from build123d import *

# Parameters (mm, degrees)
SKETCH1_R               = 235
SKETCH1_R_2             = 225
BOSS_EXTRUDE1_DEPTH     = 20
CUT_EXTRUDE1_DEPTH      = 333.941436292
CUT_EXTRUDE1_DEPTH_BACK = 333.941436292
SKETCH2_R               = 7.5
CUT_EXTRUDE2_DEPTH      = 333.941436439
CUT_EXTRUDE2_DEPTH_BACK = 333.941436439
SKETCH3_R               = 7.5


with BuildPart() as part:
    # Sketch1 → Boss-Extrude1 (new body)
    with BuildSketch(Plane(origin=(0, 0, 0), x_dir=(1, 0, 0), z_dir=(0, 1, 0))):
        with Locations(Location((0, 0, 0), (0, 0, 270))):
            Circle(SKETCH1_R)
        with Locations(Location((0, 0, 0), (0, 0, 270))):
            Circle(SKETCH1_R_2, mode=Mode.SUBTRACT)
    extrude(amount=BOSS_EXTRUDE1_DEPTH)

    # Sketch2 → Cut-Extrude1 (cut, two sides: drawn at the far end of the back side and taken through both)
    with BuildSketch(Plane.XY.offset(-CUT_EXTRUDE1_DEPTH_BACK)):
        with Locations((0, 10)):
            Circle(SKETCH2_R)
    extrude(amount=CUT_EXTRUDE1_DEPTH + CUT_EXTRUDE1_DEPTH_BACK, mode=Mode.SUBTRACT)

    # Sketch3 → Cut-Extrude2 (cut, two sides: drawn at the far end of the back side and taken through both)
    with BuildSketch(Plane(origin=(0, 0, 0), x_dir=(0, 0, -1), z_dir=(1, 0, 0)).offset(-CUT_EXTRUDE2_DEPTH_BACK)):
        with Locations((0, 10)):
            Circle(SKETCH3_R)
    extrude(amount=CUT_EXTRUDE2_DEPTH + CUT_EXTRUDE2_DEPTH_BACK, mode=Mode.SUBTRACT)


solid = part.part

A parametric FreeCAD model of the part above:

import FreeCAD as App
import Part
import Sketcher

V = App.Vector

doc = App.newDocument("Part")
body = doc.addObject("PartDesign::Body", "Body")

# Sketch on XZ plane
sketch1 = body.newObject("Sketcher::SketchObject", "Sketch")
sketch1.AttachmentSupport = (doc.getObject("XZ_Plane"), [""])
sketch1.MapMode = "FlatFace"
sketch1.addGeometry(Part.Circle(V(0, 0, 0), V(0, 0, 1), 235), False)
sketch1.addGeometry(Part.Circle(V(0, 0, 0), V(0, 0, 1), 225), False)
sketch1.addConstraint(Sketcher.Constraint("Coincident", 0, 3, -1, 1))
sketch1.addConstraint(Sketcher.Constraint("Coincident", 1, 3, -1, 1))
sketch1.addConstraint(Sketcher.Constraint("Diameter", 0, 470.0))
sketch1.addConstraint(Sketcher.Constraint("Diameter", 1, 450.0))
pad1 = body.newObject("PartDesign::Pad", "Pad")
pad1.Profile = sketch1
pad1.Length = 20
pad1.Reversed = True

# Sketch on XY plane
sketch2 = body.newObject("Sketcher::SketchObject", "Sketch001")
sketch2.AttachmentSupport = (doc.getObject("XY_Plane"), [""])
sketch2.MapMode = "FlatFace"
sketch2.addGeometry(Part.Circle(V(0, 10, 0), V(0, 0, 1), 8), False)
sketch2.addConstraint(Sketcher.Constraint("PointOnObject", 0, 3, -2))
sketch2.addConstraint(Sketcher.Constraint("Diameter", 0, 15.0))
sketch2.addConstraint(Sketcher.Constraint("DistanceY", -1, 1, 0, 3, 10.0))
pocket1 = body.newObject("PartDesign::Pocket", "Pocket")
pocket1.Profile = sketch2
pocket1.Type = "ThroughAll"
pocket1.Midplane = True

# Sketch on YZ plane
sketch3 = body.newObject("Sketcher::SketchObject", "Sketch002")
sketch3.AttachmentSupport = (doc.getObject("YZ_Plane"), [""])
sketch3.MapMode = "FlatFace"
sketch3.addGeometry(Part.Circle(V(10, 0, 0), V(0, 0, 1), 8), False)
sketch3.addConstraint(Sketcher.Constraint("PointOnObject", 0, 3, -1))
sketch3.addConstraint(Sketcher.Constraint("Diameter", 0, 15.0))
sketch3.addConstraint(Sketcher.Constraint("DistanceX", -1, 1, 0, 3, 10.0))
pocket2 = body.newObject("PartDesign::Pocket", "Pocket001")
pocket2.Profile = sketch3
pocket2.Type = "ThroughAll"
pocket2.Midplane = True

doc.recompute()
